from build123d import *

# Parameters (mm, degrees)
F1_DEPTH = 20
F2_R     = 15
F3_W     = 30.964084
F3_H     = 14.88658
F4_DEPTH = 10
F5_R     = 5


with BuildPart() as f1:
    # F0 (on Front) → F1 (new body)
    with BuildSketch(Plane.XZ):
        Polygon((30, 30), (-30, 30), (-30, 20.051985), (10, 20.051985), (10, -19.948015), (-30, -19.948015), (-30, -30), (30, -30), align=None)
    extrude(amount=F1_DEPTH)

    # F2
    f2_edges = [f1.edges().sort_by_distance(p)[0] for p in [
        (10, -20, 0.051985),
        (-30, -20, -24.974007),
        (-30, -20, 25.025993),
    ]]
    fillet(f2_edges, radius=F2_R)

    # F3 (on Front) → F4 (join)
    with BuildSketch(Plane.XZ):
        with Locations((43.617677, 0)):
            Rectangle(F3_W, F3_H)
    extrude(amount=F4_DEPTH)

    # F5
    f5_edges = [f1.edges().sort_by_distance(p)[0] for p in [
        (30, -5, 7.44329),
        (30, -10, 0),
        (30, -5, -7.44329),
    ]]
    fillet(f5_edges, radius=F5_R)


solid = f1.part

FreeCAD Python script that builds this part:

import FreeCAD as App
import Part
import Sketcher

V = App.Vector


def edges_at(feature, points):
    """Names of the edges that pass closest to the given points."""
    edges = feature.Shape.Edges
    near = lambda p: min(range(len(edges)), key=lambda i: edges[i].distToShape(Part.Vertex(*p))[0])
    return sorted({f"Edge{near(p) + 1}" for p in points})

doc = App.newDocument("Part")
params = doc.addObject("Spreadsheet::Sheet", "Params")
for row, (alias, value) in enumerate([
    ("sketch1_width", "60 mm"),
    ("sketch1_width2", "40 mm"),
    ("pad1_length", "20 mm"),
    ("fillet_radius", "15 mm"),
    ("pad2_length", "10 mm"),
    ("fillet2_radius", "5 mm"),
], start=1):
    params.set(f"A{row}", alias)
    params.set(f"B{row}", "=" + value)
    params.setAlias(f"B{row}", alias)

body = doc.addObject("PartDesign::Body", "Body")

sketch1 = body.newObject("Sketcher::SketchObject", "Sketch")
sketch1.AttachmentSupport = (doc.getObject("XZ_Plane"), [""])
sketch1.MapMode = "FlatFace"
sketch1.addGeometry(Part.LineSegment(V(30, 30, 0), V(-30, 30, 0)), False)
sketch1.addGeometry(Part.LineSegment(V(-30, 30, 0), V(-30, 20.051985, 0)), False)
sketch1.addGeometry(Part.LineSegment(V(-30, 20.051985, 0), V(10, 20.051985, 0)), False)
sketch1.addGeometry(Part.LineSegment(V(10, 20.051985, 0), V(10, -19.948015, 0)), False)
sketch1.addGeometry(Part.LineSegment(V(10, -19.948015, 0), V(-30, -19.948015, 0)), False)
sketch1.addGeometry(Part.LineSegment(V(-30, -19.948015, 0), V(-30, -30, 0)), False)
sketch1.addGeometry(Part.LineSegment(V(-30, -30, 0), V(30, -30, 0)), False)
sketch1.addGeometry(Part.LineSegment(V(30, -30, 0), V(30, 30, 0)), False)
sketch1.addConstraint(Sketcher.Constraint("Coincident", 0, 2, 1, 1))
sketch1.addConstraint(Sketcher.Constraint("Coincident", 1, 2, 2, 1))
sketch1.addConstraint(Sketcher.Constraint("Coincident", 2, 2, 3, 1))
sketch1.addConstraint(Sketcher.Constraint("Coincident", 3, 2, 4, 1))
sketch1.addConstraint(Sketcher.Constraint("Coincident", 4, 2, 5, 1))
sketch1.addConstraint(Sketcher.Constraint("Coincident", 5, 2, 6, 1))
sketch1.addConstraint(Sketcher.Constraint("Coincident", 6, 2, 7, 1))
sketch1.addConstraint(Sketcher.Constraint("Coincident", 7, 2, 0, 1))
sketch1.addConstraint(Sketcher.Constraint("Horizontal", 0))
sketch1.addConstraint(Sketcher.Constraint("Vertical", 1))
sketch1.addConstraint(Sketcher.Constraint("Horizontal", 2))
sketch1.addConstraint(Sketcher.Constraint("Vertical", 3))
sketch1.addConstraint(Sketcher.Constraint("Horizontal", 4))
sketch1.addConstraint(Sketcher.Constraint("Vertical", 5))
sketch1.addConstraint(Sketcher.Constraint("Horizontal", 6))
sketch1.addConstraint(Sketcher.Constraint("Vertical", 7))
sketch1.addConstraint(Sketcher.Constraint("Symmetric", 0, 2, 6, 2, -1, 1))
sketch1.addConstraint(Sketcher.Constraint("Vertical", 1, 2, 4, 2))
sketch1.addConstraint(Sketcher.Constraint("Equal", 4, 3))
sketch1.addConstraint(Sketcher.Constraint("Equal", 6, 7))
sketch1.addConstraint(Sketcher.Constraint("DistanceX", 0, 2, 0, 1, 60.0))
sketch1.addConstraint(Sketcher.Constraint("DistanceX", 2, 1, 2, 2, 40.0))
sketch1.addConstraint(Sketcher.Constraint("DistanceY", 1, 2, 1, 1, 9.948015))
sketch1.setExpression("Constraints[20]", "Params.sketch1_width")
sketch1.setExpression("Constraints[21]", "Params.sketch1_width2")
pad1 = body.newObject("PartDesign::Pad", "Pad")
pad1.Profile = sketch1
pad1.setExpression("Length", "Params.pad1_length")
doc.recompute()

fillet = body.newObject("PartDesign::Fillet", "Fillet")
fillet.Base = (pad1, edges_at(pad1, [(10, -20, 0.052), (-30, -20, -24.974), (-30, -20, 25.026)]))
fillet.setExpression("Radius", "Params.fillet_radius")

sketch2 = body.newObject("Sketcher::SketchObject", "Sketch001")
sketch2.AttachmentSupport = (doc.getObject("XZ_Plane"), [""])
sketch2.MapMode = "FlatFace"
sketch2.addGeometry(Part.LineSegment(V(28.135635, 7.44329, 0), V(28.135635, -7.44329, 0)), False)
sketch2.addGeometry(Part.LineSegment(V(28.135635, -7.44329, 0), V(59.099719, -7.44329, 0)), False)
sketch2.addGeometry(Part.LineSegment(V(59.099719, -7.44329, 0), V(59.099719, 7.44329, 0)), False)
sketch2.addGeometry(Part.LineSegment(V(59.099719, 7.44329, 0), V(28.135635, 7.44329, 0)), False)
sketch2.addConstraint(Sketcher.Constraint("Coincident", 0, 2, 1, 1))
sketch2.addConstraint(Sketcher.Constraint("Coincident", 1, 2, 2, 1))
sketch2.addConstraint(Sketcher.Constraint("Coincident", 2, 2, 3, 1))
sketch2.addConstraint(Sketcher.Constraint("Coincident", 3, 2, 0, 1))
sketch2.addConstraint(Sketcher.Constraint("Vertical", 0))
sketch2.addConstraint(Sketcher.Constraint("Horizontal", 1))
sketch2.addConstraint(Sketcher.Constraint("Vertical", 2))
sketch2.addConstraint(Sketcher.Constraint("Horizontal", 3))
sketch2.addConstraint(Sketcher.Constraint("DistanceY", 0, 2, 0, 1, 14.88658))
sketch2.addConstraint(Sketcher.Constraint("DistanceX", 1, 1, 1, 2, 30.964084))
sketch2.addConstraint(Sketcher.Constraint("DistanceY", 0, 2, -1, 1, 7.44329))
sketch2.addConstraint(Sketcher.Constraint("DistanceX", -1, 1, 1, 2, 59.099719))
pad2 = body.newObject("PartDesign::Pad", "Pad001")
pad2.Profile = sketch2
pad2.setExpression("Length", "Params.pad2_length")
doc.recompute()

fillet2 = body.newObject("PartDesign::Fillet", "Fillet001")
fillet2.Base = (pad2, edges_at(pad2, [(30, -5, 7.443), (30, -10, 0), (30, -5, -7.443)]))
fillet2.setExpression("Radius", "Params.fillet2_radius")

doc.recompute()
